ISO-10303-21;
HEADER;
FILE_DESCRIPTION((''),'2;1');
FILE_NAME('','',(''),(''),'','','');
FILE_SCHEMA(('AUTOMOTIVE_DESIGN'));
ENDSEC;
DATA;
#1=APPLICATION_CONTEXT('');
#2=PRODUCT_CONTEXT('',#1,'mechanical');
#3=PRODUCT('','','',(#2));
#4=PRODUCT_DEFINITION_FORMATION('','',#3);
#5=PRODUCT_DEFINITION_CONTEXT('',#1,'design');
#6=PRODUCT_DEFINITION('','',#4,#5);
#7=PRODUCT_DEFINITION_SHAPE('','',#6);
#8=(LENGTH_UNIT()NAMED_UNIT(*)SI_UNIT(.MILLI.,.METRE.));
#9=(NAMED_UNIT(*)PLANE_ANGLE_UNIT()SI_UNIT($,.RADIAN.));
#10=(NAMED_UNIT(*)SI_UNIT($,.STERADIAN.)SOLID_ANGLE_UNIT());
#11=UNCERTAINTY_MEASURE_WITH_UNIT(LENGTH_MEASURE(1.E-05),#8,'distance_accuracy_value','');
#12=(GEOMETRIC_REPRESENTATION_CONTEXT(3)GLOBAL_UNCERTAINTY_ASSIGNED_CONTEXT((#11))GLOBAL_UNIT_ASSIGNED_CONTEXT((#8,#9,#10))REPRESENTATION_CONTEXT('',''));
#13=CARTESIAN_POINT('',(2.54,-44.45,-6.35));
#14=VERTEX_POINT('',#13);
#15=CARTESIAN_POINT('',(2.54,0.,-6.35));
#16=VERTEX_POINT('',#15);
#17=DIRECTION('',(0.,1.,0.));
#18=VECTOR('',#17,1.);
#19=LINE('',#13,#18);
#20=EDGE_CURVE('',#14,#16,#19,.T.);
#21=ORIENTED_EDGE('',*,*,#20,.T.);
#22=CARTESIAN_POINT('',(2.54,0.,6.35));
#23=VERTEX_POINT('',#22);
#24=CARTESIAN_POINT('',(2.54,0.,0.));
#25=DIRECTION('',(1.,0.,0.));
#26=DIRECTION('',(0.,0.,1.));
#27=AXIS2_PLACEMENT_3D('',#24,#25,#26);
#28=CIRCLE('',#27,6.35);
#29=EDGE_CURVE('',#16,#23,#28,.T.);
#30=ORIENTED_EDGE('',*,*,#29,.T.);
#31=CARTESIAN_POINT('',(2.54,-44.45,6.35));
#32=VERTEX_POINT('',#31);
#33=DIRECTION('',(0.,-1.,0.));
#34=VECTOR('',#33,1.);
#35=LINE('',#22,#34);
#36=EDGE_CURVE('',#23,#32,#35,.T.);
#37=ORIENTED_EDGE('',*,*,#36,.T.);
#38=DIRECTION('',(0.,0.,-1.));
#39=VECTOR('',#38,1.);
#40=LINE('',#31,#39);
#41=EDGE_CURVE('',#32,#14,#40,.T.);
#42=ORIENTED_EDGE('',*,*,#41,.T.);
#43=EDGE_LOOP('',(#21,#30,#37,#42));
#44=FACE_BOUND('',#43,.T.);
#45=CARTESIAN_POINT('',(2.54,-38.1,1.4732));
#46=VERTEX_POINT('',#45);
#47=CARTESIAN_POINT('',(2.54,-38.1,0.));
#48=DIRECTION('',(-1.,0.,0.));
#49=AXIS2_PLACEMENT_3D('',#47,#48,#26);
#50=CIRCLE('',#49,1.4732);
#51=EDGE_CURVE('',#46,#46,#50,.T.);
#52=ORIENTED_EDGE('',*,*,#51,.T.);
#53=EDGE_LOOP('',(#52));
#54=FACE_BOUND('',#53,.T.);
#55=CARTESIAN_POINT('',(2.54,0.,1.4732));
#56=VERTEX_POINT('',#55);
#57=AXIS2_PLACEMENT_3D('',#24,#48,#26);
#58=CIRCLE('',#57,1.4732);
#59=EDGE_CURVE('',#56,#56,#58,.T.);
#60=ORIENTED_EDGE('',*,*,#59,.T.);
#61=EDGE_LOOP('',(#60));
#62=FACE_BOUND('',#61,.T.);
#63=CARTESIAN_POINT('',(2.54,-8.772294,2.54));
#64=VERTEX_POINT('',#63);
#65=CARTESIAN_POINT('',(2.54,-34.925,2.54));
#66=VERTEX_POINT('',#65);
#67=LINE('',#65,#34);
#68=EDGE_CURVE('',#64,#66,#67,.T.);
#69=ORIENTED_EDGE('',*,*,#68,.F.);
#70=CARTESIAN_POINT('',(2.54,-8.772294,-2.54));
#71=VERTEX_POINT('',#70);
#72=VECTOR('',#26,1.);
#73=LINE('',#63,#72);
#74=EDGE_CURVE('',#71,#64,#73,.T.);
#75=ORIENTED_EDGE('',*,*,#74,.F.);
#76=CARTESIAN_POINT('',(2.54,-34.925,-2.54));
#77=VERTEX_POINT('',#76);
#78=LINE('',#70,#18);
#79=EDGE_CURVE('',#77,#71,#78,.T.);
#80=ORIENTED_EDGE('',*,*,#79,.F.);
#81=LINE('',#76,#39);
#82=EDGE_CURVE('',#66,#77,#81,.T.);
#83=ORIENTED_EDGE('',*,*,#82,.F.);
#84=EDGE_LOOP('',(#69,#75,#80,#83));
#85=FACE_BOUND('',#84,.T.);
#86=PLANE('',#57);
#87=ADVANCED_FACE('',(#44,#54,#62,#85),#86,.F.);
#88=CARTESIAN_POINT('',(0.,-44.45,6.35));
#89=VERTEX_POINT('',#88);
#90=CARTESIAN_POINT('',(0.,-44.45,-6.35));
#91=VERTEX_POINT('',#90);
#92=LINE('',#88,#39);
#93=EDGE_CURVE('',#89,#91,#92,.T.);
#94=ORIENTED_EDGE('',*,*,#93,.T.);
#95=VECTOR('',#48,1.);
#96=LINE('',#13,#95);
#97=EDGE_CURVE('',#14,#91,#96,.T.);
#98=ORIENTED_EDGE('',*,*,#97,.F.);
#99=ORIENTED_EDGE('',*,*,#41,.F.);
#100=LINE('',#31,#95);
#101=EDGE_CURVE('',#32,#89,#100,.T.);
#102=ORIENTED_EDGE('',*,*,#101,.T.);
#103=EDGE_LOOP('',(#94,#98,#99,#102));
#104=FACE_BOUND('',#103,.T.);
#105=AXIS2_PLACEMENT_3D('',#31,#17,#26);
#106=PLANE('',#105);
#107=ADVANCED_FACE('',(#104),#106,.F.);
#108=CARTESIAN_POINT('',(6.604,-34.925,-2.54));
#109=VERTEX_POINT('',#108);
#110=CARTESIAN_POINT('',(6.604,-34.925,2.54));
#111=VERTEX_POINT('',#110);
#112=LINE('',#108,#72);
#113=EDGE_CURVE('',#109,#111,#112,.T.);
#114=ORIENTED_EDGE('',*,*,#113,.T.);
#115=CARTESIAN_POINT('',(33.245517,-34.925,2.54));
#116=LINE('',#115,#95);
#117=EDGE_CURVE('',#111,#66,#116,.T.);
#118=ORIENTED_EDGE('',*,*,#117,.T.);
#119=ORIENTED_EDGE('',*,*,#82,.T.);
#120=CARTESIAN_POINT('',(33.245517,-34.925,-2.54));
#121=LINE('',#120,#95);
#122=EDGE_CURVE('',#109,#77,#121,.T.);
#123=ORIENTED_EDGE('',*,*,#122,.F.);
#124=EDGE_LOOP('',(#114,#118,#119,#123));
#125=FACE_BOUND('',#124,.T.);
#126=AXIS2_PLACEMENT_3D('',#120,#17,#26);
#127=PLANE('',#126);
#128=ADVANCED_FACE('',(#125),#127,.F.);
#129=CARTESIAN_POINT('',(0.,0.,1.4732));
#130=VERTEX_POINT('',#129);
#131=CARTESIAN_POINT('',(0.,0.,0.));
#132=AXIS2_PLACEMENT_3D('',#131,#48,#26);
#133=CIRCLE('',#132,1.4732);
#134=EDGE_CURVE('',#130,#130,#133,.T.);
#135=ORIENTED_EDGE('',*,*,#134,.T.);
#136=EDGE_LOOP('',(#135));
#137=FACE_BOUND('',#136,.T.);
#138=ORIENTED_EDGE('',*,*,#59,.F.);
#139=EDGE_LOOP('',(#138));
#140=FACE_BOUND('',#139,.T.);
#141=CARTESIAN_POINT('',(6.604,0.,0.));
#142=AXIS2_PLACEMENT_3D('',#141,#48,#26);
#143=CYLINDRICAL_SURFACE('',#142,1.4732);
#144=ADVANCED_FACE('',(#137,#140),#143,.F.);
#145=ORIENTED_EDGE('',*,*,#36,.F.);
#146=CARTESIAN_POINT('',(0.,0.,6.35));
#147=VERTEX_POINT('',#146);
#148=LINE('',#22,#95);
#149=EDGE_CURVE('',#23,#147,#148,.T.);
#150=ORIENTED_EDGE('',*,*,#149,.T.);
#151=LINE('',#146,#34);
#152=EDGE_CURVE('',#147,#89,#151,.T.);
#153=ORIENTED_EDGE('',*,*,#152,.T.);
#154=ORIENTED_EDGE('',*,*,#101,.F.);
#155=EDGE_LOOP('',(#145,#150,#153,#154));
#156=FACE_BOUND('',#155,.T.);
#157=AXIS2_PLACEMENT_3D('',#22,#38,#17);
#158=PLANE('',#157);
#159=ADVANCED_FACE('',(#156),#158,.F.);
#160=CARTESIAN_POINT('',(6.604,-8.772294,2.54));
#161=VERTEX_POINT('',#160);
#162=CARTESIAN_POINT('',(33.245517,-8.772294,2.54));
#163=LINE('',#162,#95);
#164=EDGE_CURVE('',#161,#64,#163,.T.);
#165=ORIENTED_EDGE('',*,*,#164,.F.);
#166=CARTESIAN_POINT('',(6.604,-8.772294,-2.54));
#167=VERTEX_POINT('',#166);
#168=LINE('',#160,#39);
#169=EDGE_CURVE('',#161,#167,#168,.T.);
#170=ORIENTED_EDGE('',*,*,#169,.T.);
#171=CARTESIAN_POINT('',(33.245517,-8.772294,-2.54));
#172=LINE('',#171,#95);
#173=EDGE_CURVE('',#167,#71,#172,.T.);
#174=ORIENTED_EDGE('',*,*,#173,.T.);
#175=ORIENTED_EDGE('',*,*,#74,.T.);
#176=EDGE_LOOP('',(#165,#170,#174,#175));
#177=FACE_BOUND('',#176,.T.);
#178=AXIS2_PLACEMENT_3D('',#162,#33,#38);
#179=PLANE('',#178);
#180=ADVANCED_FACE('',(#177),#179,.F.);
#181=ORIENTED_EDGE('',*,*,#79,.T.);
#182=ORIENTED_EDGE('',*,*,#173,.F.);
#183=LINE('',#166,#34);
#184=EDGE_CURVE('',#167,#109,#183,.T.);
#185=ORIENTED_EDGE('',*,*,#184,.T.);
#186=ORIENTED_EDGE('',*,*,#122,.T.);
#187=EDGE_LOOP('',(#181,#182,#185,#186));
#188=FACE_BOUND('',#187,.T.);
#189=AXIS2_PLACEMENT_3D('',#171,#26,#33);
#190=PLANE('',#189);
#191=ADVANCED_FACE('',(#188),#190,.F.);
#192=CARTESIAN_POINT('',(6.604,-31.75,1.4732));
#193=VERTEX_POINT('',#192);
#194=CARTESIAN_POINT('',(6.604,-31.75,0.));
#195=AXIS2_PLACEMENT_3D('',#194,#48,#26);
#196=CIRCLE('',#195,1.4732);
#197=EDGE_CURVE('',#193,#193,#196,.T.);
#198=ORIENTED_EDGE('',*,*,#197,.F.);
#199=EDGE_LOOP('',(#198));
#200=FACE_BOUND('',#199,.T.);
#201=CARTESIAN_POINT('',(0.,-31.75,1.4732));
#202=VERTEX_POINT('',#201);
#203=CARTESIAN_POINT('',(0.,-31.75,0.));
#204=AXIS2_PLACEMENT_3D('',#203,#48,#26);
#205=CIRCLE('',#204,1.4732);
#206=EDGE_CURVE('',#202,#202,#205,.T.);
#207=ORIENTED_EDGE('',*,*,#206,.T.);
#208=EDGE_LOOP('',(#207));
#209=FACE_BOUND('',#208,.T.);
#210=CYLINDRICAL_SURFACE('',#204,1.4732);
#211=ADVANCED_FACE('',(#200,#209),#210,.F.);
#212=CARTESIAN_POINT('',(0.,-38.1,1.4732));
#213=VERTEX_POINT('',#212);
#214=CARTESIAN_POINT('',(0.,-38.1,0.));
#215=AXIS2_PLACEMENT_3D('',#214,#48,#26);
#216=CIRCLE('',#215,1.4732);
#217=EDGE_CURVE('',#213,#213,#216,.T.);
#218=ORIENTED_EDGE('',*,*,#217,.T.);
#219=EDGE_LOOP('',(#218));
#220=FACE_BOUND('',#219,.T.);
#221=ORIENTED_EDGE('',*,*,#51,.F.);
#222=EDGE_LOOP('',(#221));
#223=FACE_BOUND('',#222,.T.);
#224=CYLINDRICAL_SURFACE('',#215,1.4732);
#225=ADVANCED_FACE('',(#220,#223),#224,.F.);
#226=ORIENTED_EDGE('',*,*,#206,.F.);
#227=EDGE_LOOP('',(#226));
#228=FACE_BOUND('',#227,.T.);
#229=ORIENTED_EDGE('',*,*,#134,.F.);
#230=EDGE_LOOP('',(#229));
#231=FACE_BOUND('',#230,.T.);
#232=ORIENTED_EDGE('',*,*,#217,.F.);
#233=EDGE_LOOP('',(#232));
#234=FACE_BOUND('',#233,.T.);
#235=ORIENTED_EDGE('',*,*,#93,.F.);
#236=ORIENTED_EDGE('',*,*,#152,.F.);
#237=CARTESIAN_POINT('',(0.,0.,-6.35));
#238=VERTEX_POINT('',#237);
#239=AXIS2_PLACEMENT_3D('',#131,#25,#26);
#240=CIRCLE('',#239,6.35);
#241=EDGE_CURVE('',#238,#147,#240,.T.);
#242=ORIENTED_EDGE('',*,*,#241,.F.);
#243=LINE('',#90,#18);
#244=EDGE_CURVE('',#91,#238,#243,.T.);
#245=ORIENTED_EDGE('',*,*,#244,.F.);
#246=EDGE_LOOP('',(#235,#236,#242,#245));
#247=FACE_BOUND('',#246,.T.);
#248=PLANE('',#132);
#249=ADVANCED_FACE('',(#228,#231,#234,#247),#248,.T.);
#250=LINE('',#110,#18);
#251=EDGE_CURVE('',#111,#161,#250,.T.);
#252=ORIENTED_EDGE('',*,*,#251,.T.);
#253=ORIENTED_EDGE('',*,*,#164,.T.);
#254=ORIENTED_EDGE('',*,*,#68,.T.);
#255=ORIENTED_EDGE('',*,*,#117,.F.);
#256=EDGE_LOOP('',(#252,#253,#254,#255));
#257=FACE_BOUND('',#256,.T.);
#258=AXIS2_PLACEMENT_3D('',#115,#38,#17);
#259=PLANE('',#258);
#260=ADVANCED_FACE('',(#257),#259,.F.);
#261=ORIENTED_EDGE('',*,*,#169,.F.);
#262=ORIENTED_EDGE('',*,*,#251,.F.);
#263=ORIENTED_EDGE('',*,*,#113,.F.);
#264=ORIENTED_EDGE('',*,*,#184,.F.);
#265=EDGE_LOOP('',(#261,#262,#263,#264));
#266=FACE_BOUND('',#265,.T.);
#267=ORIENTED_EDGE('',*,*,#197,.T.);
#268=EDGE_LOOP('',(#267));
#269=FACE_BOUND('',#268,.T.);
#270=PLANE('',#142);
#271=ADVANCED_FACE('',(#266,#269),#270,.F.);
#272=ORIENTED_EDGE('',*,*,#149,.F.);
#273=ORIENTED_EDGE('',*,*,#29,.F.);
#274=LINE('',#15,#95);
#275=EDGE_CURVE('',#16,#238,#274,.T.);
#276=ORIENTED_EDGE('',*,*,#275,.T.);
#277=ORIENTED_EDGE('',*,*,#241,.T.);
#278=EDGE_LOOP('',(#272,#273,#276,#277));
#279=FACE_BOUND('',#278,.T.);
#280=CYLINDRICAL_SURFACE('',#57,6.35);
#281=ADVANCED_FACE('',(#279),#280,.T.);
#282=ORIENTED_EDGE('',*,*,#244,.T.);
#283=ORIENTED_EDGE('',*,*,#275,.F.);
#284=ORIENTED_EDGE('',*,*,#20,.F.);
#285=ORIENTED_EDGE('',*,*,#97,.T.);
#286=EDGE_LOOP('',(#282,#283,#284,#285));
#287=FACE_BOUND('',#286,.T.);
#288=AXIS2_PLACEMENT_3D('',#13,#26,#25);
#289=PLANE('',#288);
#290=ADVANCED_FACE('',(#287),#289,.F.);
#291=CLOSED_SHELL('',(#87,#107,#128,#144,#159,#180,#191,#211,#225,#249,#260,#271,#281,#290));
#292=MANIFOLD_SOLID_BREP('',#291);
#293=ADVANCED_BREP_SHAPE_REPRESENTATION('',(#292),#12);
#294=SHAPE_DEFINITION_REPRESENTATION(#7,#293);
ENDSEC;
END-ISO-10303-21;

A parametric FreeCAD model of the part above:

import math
import FreeCAD as App
import Part
import Sketcher
Q = App.Units.Quantity

doc = App.newDocument("Part")
params = doc.addObject("Spreadsheet::Sheet", "Params")
for row, (alias, value) in enumerate([
    ("sketch1_radius", "0.25 in"),
    ("sketch1_width", "1.75 in"),
    ("pad1_length", "0.1 in"),
    ("sketch2_height", "0.2 in"),
    ("pad2_length", "0.16 in"),
    ("sketch3_diameter", "0.116 in"),
    ("sketch4_diameter", "0.116 in"),
    ("hole_diameter", "0.116 in"),
], start=1):
    params.set(f"A{row}", alias)
    params.set(f"B{row}", "=" + value)
    params.setAlias(f"B{row}", alias)

body = doc.addObject("PartDesign::Body", "Body")

# Sketch on YZ plane
sketch1 = body.newObject("Sketcher::SketchObject", "Sketch")
sketch1.AttachmentSupport = (doc.getObject("YZ_Plane"), [""])
sketch1.MapMode = "FlatFace"
sketch1.addGeometry(Part.LineSegment(App.Vector(0, 6, 0), App.Vector(-44, 6, 0)), False)
sketch1.addGeometry(Part.LineSegment(App.Vector(-44, 6, 0), App.Vector(-44, -6, 0)), False)
sketch1.addGeometry(Part.LineSegment(App.Vector(-44, -6, 0), App.Vector(0, -6, 0)), False)
sketch1.addGeometry(Part.ArcOfCircle(Part.Circle(App.Vector(0, 0, 0), App.Vector(0, 0, 1), 6), math.radians(-90), math.radians(90)), False)
sketch1.addConstraint(Sketcher.Constraint("Coincident", 0, 2, 1, 1))
sketch1.addConstraint(Sketcher.Constraint("Coincident", 1, 2, 2, 1))
sketch1.addConstraint(Sketcher.Constraint("Tangent", 2, 2, 3, 1))
sketch1.addConstraint(Sketcher.Constraint("Tangent", 3, 2, 0, 1))
sketch1.addConstraint(Sketcher.Constraint("Horizontal", 0))
sketch1.addConstraint(Sketcher.Constraint("Vertical", 1))
sketch1.addConstraint(Sketcher.Constraint("Horizontal", 2))
sketch1.addConstraint(Sketcher.Constraint("Coincident", 3, 3, -1, 1))
sketch1.addConstraint(Sketcher.Constraint("Radius", 3, Q("0.25 in")))
sketch1.addConstraint(Sketcher.Constraint("DistanceX", 0, 2, 0, 1, Q("1.75 in")))
sketch1.setExpression("Constraints[8]", "Params.sketch1_radius")
sketch1.setExpression("Constraints[9]", "Params.sketch1_width")
pad1 = body.newObject("PartDesign::Pad", "Pad")
pad1.Profile = sketch1
pad1.setExpression("Length", "Params.pad1_length")

# Sketch on YZ plane
sketch2 = body.newObject("Sketcher::SketchObject", "Sketch001")
sketch2.AttachmentSupport = (doc.getObject("YZ_Plane"), [""])
sketch2.MapMode = "FlatFace"
sketch2.AttachmentOffset = App.Placement(App.Vector(0, 0, 0.1 * 25.4), App.Rotation())
sketch2.addGeometry(Part.LineSegment(App.Vector(-9, 3, 0), App.Vector(-35, 3, 0)), False)
sketch2.addGeometry(Part.LineSegment(App.Vector(-35, 3, 0), App.Vector(-35, -3, 0)), False)
sketch2.addGeometry(Part.LineSegment(App.Vector(-35, -3, 0), App.Vector(-9, -3, 0)), False)
sketch2.addGeometry(Part.LineSegment(App.Vector(-9, -3, 0), App.Vector(-9, 3, 0)), False)
sketch2.addConstraint(Sketcher.Constraint("Coincident", 0, 2, 1, 1))
sketch2.addConstraint(Sketcher.Constraint("Coincident", 1, 2, 2, 1))
sketch2.addConstraint(Sketcher.Constraint("Coincident", 2, 2, 3, 1))
sketch2.addConstraint(Sketcher.Constraint("Coincident", 3, 2, 0, 1))
sketch2.addConstraint(Sketcher.Constraint("Horizontal", 0))
sketch2.addConstraint(Sketcher.Constraint("Vertical", 1))
sketch2.addConstraint(Sketcher.Constraint("Horizontal", 2))
sketch2.addConstraint(Sketcher.Constraint("Vertical", 3))
sketch2.addConstraint(Sketcher.Constraint("DistanceY", 1, 2, 1, 1, Q("0.2 in")))
sketch2.addConstraint(Sketcher.Constraint("DistanceY", -1, 1, 0, 2, Q("0.1 in")))
sketch2.addConstraint(Sketcher.Constraint("DistanceX", 0, 2, -1, 1, Q("1.375 in")))
sketch2.addConstraint(Sketcher.Constraint("DistanceX", 0, 2, 0, 1, Q("26.152706 mm")))
sketch2.setExpression("Constraints[8]", "Params.sketch2_height")
pad2 = body.newObject("PartDesign::Pad", "Pad001")
pad2.Profile = sketch2
pad2.setExpression("Length", "Params.pad2_length")

# Sketch on YZ plane
sketch3 = body.newObject("Sketcher::SketchObject", "Sketch002")
sketch3.AttachmentSupport = (doc.getObject("YZ_Plane"), [""])
sketch3.MapMode = "FlatFace"
sketch3.addGeometry(Part.Circle(App.Vector(0, 0, 0), App.Vector(0, 0, 1), 1.5), False)
sketch3.addConstraint(Sketcher.Constraint("Coincident", 0, 3, -1, 1))
sketch3.addConstraint(Sketcher.Constraint("Diameter", 0, Q("0.116 in")))
sketch3.setExpression("Constraints[1]", "Params.sketch3_diameter")
pocket1 = body.newObject("PartDesign::Pocket", "Pocket")
pocket1.Profile = sketch3
pocket1.Type = "ThroughAll"
pocket1.Midplane = True

# Sketch on YZ plane
sketch4 = body.newObject("Sketcher::SketchObject", "Sketch003")
sketch4.AttachmentSupport = (doc.getObject("YZ_Plane"), [""])
sketch4.MapMode = "FlatFace"
sketch4.addGeometry(Part.Circle(App.Vector(-31.8, 0, 0), App.Vector(0, 0, 1), 1.5), False)
sketch4.addGeometry(Part.Circle(App.Vector(-38.1, 0, 0), App.Vector(0, 0, 1), 1.5), False)
sketch4.addConstraint(Sketcher.Constraint("Equal", 0, 1))
sketch4.addConstraint(Sketcher.Constraint("PointOnObject", 0, 3, -1))
sketch4.addConstraint(Sketcher.Constraint("PointOnObject", 1, 3, -1))
sketch4.addConstraint(Sketcher.Constraint("Diameter", 0, Q("0.116 in")))
sketch4.addConstraint(Sketcher.Constraint("DistanceX", 1, 3, -1, 1, Q("1.5 in")))
sketch4.addConstraint(Sketcher.Constraint("DistanceX", 0, 3, -1, 1, Q("1.25 in")))
sketch4.setExpression("Constraints[3]", "Params.sketch4_diameter")
doc.recompute()
hole = body.newObject("PartDesign::Hole", "Hole")
hole.Profile = sketch4
hole.ThreadType = "None"
hole.setExpression("Diameter", "Params.hole_diameter")
hole.DepthType = "ThroughAll"
hole.Reversed = True

doc.recompute()
